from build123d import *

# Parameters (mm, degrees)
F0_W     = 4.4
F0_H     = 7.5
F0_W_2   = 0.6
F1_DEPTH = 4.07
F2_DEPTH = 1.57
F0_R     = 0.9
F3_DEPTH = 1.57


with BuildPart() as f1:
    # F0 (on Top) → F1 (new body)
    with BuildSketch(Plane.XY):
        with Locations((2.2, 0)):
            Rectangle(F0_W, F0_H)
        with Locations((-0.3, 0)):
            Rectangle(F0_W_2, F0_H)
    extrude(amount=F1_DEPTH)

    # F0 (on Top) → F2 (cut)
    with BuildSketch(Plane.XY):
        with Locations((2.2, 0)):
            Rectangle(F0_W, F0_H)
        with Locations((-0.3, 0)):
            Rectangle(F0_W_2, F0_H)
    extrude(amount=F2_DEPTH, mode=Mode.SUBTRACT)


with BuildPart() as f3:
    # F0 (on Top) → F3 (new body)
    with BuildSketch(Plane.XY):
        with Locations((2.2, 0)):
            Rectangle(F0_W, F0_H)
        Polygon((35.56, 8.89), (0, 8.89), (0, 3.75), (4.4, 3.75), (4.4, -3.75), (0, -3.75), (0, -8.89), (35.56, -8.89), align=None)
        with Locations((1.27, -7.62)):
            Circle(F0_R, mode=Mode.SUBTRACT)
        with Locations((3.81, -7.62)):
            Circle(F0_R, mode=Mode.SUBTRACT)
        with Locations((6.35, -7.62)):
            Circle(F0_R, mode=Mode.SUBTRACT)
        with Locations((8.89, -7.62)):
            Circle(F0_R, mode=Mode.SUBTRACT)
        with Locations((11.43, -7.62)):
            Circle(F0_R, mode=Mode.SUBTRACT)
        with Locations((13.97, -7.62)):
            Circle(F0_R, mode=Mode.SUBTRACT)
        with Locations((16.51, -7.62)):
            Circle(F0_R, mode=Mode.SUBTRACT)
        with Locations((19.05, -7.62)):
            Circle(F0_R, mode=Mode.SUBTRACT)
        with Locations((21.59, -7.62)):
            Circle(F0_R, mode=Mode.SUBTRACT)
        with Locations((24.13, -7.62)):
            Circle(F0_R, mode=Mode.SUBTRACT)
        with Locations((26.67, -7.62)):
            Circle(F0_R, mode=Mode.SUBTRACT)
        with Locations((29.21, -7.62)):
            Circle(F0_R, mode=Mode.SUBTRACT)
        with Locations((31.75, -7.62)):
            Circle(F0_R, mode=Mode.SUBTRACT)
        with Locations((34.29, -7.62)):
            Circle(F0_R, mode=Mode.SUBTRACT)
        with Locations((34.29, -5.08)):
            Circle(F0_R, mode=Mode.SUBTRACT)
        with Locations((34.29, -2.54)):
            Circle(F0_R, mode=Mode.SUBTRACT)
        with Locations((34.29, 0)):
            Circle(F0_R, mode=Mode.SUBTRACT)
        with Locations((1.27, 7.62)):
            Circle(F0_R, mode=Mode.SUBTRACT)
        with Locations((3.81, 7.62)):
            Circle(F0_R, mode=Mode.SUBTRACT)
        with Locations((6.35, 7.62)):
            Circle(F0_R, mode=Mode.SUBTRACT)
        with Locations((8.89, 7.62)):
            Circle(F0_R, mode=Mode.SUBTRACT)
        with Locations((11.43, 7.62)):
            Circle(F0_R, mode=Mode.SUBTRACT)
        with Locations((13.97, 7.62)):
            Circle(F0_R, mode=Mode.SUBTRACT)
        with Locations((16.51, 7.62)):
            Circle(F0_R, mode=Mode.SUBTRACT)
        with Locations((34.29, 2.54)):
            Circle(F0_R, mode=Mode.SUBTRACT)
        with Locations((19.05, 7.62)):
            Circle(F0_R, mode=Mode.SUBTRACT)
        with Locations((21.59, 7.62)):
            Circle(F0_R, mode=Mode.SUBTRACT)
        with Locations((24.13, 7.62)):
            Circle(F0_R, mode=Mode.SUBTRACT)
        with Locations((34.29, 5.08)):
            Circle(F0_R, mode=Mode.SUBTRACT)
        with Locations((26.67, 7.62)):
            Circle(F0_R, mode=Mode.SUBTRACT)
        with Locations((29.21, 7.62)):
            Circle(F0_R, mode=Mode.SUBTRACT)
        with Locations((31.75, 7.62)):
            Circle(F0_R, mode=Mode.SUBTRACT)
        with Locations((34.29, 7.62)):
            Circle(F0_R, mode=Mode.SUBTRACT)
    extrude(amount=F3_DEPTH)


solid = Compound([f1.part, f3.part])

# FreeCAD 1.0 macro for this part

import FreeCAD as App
import Part
import Sketcher

doc = App.newDocument("Part")
body = doc.addObject("PartDesign::Body", "Body")

sketch1 = body.newObject("Sketcher::SketchObject", "Sketch")
sketch1.AttachmentSupport = (doc.getObject("XY_Plane"), [""])
sketch1.MapMode = "FlatFace"
sketch1.addGeometry([
    Part.LineSegment(App.Vector(4, -4, 0), App.Vector(4, 4, 0)),
    Part.LineSegment(App.Vector(4, 4, 0), App.Vector(-1, 4, 0)),
    Part.LineSegment(App.Vector(-1, 4, 0), App.Vector(-1, -4, 0)),
    Part.LineSegment(App.Vector(-1, -4, 0), App.Vector(4, -4, 0)),
], False)
sketch1.addConstraint([
    Sketcher.Constraint("Coincident", 0, 2, 1, 1),
    Sketcher.Constraint("Coincident", 1, 2, 2, 1),
    Sketcher.Constraint("Coincident", 2, 2, 3, 1),
    Sketcher.Constraint("Coincident", 3, 2, 0, 1),
    Sketcher.Constraint("Vertical", 0),
    Sketcher.Constraint("Horizontal", 1),
    Sketcher.Constraint("Vertical", 2),
    Sketcher.Constraint("Horizontal", 3),
    Sketcher.Constraint("DistanceX", 1, 2, 1, 1, 5.0),
    Sketcher.Constraint("DistanceY", 0, 1, 0, 2, 7.5),
    Sketcher.Constraint("DistanceX", -1, 1, 0, 2, 4.4),
    Sketcher.Constraint("DistanceY", -1, 1, 0, 2, 3.75),
])
pad1 = body.newObject("PartDesign::Pad", "Pad")
pad1.Profile = sketch1
pad1.Length = 4.07

sketch2 = body.newObject("Sketcher::SketchObject", "Sketch001")
sketch2.AttachmentSupport = (doc.getObject("XY_Plane"), [""])
sketch2.MapMode = "FlatFace"
sketch2.addGeometry([
    Part.LineSegment(App.Vector(4, -4, 0), App.Vector(4, 4, 0)),
    Part.LineSegment(App.Vector(4, 4, 0), App.Vector(-1, 4, 0)),
    Part.LineSegment(App.Vector(-1, 4, 0), App.Vector(-1, -4, 0)),
    Part.LineSegment(App.Vector(-1, -4, 0), App.Vector(4, -4, 0)),
], False)
sketch2.addConstraint([
    Sketcher.Constraint("Coincident", 0, 2, 1, 1),
    Sketcher.Constraint("Coincident", 1, 2, 2, 1),
    Sketcher.Constraint("Coincident", 2, 2, 3, 1),
    Sketcher.Constraint("Coincident", 3, 2, 0, 1),
    Sketcher.Constraint("Vertical", 0),
    Sketcher.Constraint("Horizontal", 1),
    Sketcher.Constraint("Vertical", 2),
    Sketcher.Constraint("Horizontal", 3),
    Sketcher.Constraint("DistanceX", 1, 2, 1, 1, 5.0),
    Sketcher.Constraint("DistanceY", 0, 1, 0, 2, 7.5),
    Sketcher.Constraint("DistanceX", -1, 1, 0, 2, 4.4),
    Sketcher.Constraint("DistanceY", -1, 1, 0, 2, 3.75),
])
pocket1 = body.newObject("PartDesign::Pocket", "Pocket")
pocket1.Profile = sketch2
pocket1.Length = 1.57
pocket1.Reversed = True
body2 = doc.addObject("PartDesign::Body", "Body001")

sketch3 = body2.newObject("Sketcher::SketchObject", "Sketch002")
sketch3.AttachmentSupport = (doc.getObject("XY_Plane001"), [""])
sketch3.MapMode = "FlatFace"
sketch3.addGeometry([
    Part.LineSegment(App.Vector(0, -8.9, 0), App.Vector(35.6, -8.9, 0)),
    Part.LineSegment(App.Vector(35.6, -8.9, 0), App.Vector(35.6, 8.9, 0)),
    Part.LineSegment(App.Vector(35.6, 8.9, 0), App.Vector(0, 8.9, 0)),
    Part.LineSegment(App.Vector(0, 8.9, 0), App.Vector(0, -8.9, 0)),
    Part.Circle(App.Vector(1.3, -7.6, 0), App.Vector(0, 0, 1), 0.9),
    Part.Circle(App.Vector(3.8, -7.6, 0), App.Vector(0, 0, 1), 0.9),
    Part.Circle(App.Vector(6.3, -7.6, 0), App.Vector(0, 0, 1), 0.9),
    Part.Circle(App.Vector(8.9, -7.6, 0), App.Vector(0, 0, 1), 0.9),
    Part.Circle(App.Vector(11.4, -7.6, 0), App.Vector(0, 0, 1), 0.9),
    Part.Circle(App.Vector(14, -7.6, 0), App.Vector(0, 0, 1), 0.9),
    Part.Circle(App.Vector(16.5, -7.6, 0), App.Vector(0, 0, 1), 0.9),
    Part.Circle(App.Vector(19.1, -7.6, 0), App.Vector(0, 0, 1), 0.9),
    Part.Circle(App.Vector(21.6, -7.6, 0), App.Vector(0, 0, 1), 0.9),
    Part.Circle(App.Vector(24.1, -7.6, 0), App.Vector(0, 0, 1), 0.9),
    Part.Circle(App.Vector(26.7, -7.6, 0), App.Vector(0, 0, 1), 0.9),
    Part.Circle(App.Vector(29.2, -7.6, 0), App.Vector(0, 0, 1), 0.9),
    Part.Circle(App.Vector(31.8, -7.6, 0), App.Vector(0, 0, 1), 0.9),
    Part.Circle(App.Vector(34.3, -7.6, 0), App.Vector(0, 0, 1), 0.9),
    Part.Circle(App.Vector(34.3, -5.1, 0), App.Vector(0, 0, 1), 0.9),
    Part.Circle(App.Vector(34.3, -2.5, 0), App.Vector(0, 0, 1), 0.9),
    Part.Circle(App.Vector(1.3, 7.6, 0), App.Vector(0, 0, 1), 0.9),
    Part.Circle(App.Vector(3.8, 7.6, 0), App.Vector(0, 0, 1), 0.9),
    Part.Circle(App.Vector(6.3, 7.6, 0), App.Vector(0, 0, 1), 0.9),
    Part.Circle(App.Vector(8.9, 7.6, 0), App.Vector(0, 0, 1), 0.9),
    Part.Circle(App.Vector(11.4, 7.6, 0), App.Vector(0, 0, 1), 0.9),
    Part.Circle(App.Vector(14, 7.6, 0), App.Vector(0, 0, 1), 0.9),
    Part.Circle(App.Vector(16.5, 7.6, 0), App.Vector(0, 0, 1), 0.9),
    Part.Circle(App.Vector(34.3, 0, 0), App.Vector(0, 0, 1), 0.9),
    Part.Circle(App.Vector(34.3, 2.5, 0), App.Vector(0, 0, 1), 0.9),
    Part.Circle(App.Vector(19.1, 7.6, 0), App.Vector(0, 0, 1), 0.9),
    Part.Circle(App.Vector(21.6, 7.6, 0), App.Vector(0, 0, 1), 0.9),
    Part.Circle(App.Vector(24.1, 7.6, 0), App.Vector(0, 0, 1), 0.9),
    Part.Circle(App.Vector(34.3, 5.1, 0), App.Vector(0, 0, 1), 0.9),
    Part.Circle(App.Vector(26.7, 7.6, 0), App.Vector(0, 0, 1), 0.9),
    Part.Circle(App.Vector(29.2, 7.6, 0), App.Vector(0, 0, 1), 0.9),
    Part.Circle(App.Vector(31.8, 7.6, 0), App.Vector(0, 0, 1), 0.9),
    Part.Circle(App.Vector(34.3, 7.6, 0), App.Vector(0, 0, 1), 0.9),
], False)
sketch3.addConstraint([
    Sketcher.Constraint("Coincident", 0, 2, 1, 1),
    Sketcher.Constraint("Coincident", 1, 2, 2, 1),
    Sketcher.Constraint("Coincident", 2, 2, 3, 1),
    Sketcher.Constraint("Coincident", 3, 2, 0, 1),
    Sketcher.Constraint("Horizontal", 0),
    Sketcher.Constraint("Vertical", 1),
    Sketcher.Constraint("Horizontal", 2),
    Sketcher.Constraint("Vertical", 3),
    Sketcher.Constraint("Equal", 4, 5),
    Sketcher.Constraint("Equal", 5, 6),
    Sketcher.Constraint("Equal", 6, 7),
    Sketcher.Constraint("Equal", 7, 8),
    Sketcher.Constraint("Equal", 8, 9),
    Sketcher.Constraint("Equal", 9, 10),
    Sketcher.Constraint("Equal", 10, 11),
    Sketcher.Constraint("Equal", 11, 12),
    Sketcher.Constraint("Equal", 12, 13),
    Sketcher.Constraint("Equal", 13, 14),
    Sketcher.Constraint("Equal", 14, 15),
    Sketcher.Constraint("Equal", 15, 16),
    Sketcher.Constraint("Equal", 16, 17),
    Sketcher.Constraint("Equal", 17, 18),
    Sketcher.Constraint("Equal", 18, 19),
    Sketcher.Constraint("Equal", 19, 20),
    Sketcher.Constraint("Equal", 20, 21),
    Sketcher.Constraint("Equal", 21, 22),
    Sketcher.Constraint("Equal", 22, 23),
    Sketcher.Constraint("Equal", 23, 24),
    Sketcher.Constraint("Equal", 24, 25),
    Sketcher.Constraint("Equal", 25, 26),
    Sketcher.Constraint("Equal", 26, 27),
    Sketcher.Constraint("Equal", 27, 28),
    Sketcher.Constraint("Equal", 28, 29),
    Sketcher.Constraint("Equal", 29, 30),
    Sketcher.Constraint("Equal", 30, 31),
    Sketcher.Constraint("Equal", 31, 32),
    Sketcher.Constraint("Equal", 32, 33),
    Sketcher.Constraint("Equal", 33, 34),
    Sketcher.Constraint("Equal", 34, 35),
    Sketcher.Constraint("Equal", 35, 36),
    Sketcher.Constraint("Symmetric", 2, 2, 3, 2, -1, 1),
    Sketcher.Constraint("Symmetric", 4, 3, 20, 3, -1),
    Sketcher.Constraint("Symmetric", 5, 3, 21, 3, -1),
    Sketcher.Constraint("Symmetric", 6, 3, 22, 3, -1),
    Sketcher.Constraint("Symmetric", 7, 3, 23, 3, -1),
    Sketcher.Constraint("Symmetric", 8, 3, 24, 3, -1),
    Sketcher.Constraint("Symmetric", 9, 3, 25, 3, -1),
    Sketcher.Constraint("Symmetric", 10, 3, 26, 3, -1),
    Sketcher.Constraint("Symmetric", 19, 3, 28, 3, -1),
    Sketcher.Constraint("Symmetric", 11, 3, 29, 3, -1),
    Sketcher.Constraint("Symmetric", 12, 3, 30, 3, -1),
    Sketcher.Constraint("Symmetric", 13, 3, 31, 3, -1),
    Sketcher.Constraint("Symmetric", 18, 3, 32, 3, -1),
    Sketcher.Constraint("Symmetric", 14, 3, 33, 3, -1),
    Sketcher.Constraint("Symmetric", 15, 3, 34, 3, -1),
    Sketcher.Constraint("Symmetric", 16, 3, 35, 3, -1),
    Sketcher.Constraint("Symmetric", 17, 3, 36, 3, -1),
    Sketcher.Constraint("PointOnObject", 27, 3, -1),
    Sketcher.Constraint("Horizontal", 4, 3, 5, 3),
    Sketcher.Constraint("Horizontal", 5, 3, 6, 3),
    Sketcher.Constraint("Horizontal", 6, 3, 7, 3),
    Sketcher.Constraint("Horizontal", 7, 3, 8, 3),
    Sketcher.Constraint("Horizontal", 8, 3, 9, 3),
    Sketcher.Constraint("Horizontal", 9, 3, 10, 3),
    Sketcher.Constraint("Horizontal", 10, 3, 11, 3),
    Sketcher.Constraint("Horizontal", 11, 3, 12, 3),
    Sketcher.Constraint("Horizontal", 12, 3, 13, 3),
    Sketcher.Constraint("Horizontal", 13, 3, 14, 3),
    Sketcher.Constraint("Horizontal", 14, 3, 15, 3),
    Sketcher.Constraint("Horizontal", 15, 3, 16, 3),
    Sketcher.Constraint("Horizontal", 16, 3, 17, 3),
    Sketcher.Constraint("Vertical", 17, 3, 18, 3),
    Sketcher.Constraint("Vertical", 18, 3, 19, 3),
    Sketcher.Constraint("Vertical", 19, 3, 27, 3),
    Sketcher.Constraint("Diameter", 4, 1.8),
    Sketcher.Constraint("DistanceX", 0, 1, 0, 2, 35.56),
    Sketcher.Constraint("DistanceY", 1, 1, 1, 2, 17.78),
    Sketcher.Constraint("DistanceX", 4, 3, 9, 3, 12.7),
    Sketcher.Constraint("DistanceX", 5, 3, 10, 3, 12.7),
    Sketcher.Constraint("DistanceX", 6, 3, 11, 3, 12.7),
    Sketcher.Constraint("DistanceX", 7, 3, 12, 3, 12.7),
    Sketcher.Constraint("DistanceX", 8, 3, 13, 3, 12.7),
    Sketcher.Constraint("DistanceX", 9, 3, 14, 3, 12.7),
    Sketcher.Constraint("DistanceX", 10, 3, 15, 3, 12.7),
    Sketcher.Constraint("DistanceX", 11, 3, 16, 3, 12.7),
    Sketcher.Constraint("DistanceX", 12, 3, 17, 3, 12.7),
    Sketcher.Constraint("DistanceX", -1, 1, 4, 3, 1.27),
    Sketcher.Constraint("DistanceY", 4, 3, -1, 1, 7.62),
    Sketcher.Constraint("DistanceX", -1, 1, 5, 3, 3.81),
    Sketcher.Constraint("DistanceX", -1, 1, 6, 3, 6.35),
    Sketcher.Constraint("DistanceX", -1, 1, 7, 3, 8.89),
    Sketcher.Constraint("DistanceX", -1, 1, 8, 3, 11.43),
    Sketcher.Constraint("DistanceY", 18, 3, -1, 1, 5.08),
    Sketcher.Constraint("DistanceY", 19, 3, -1, 1, 2.54),
])
pad2 = body2.newObject("PartDesign::Pad", "Pad001")
pad2.Profile = sketch3
pad2.Length = 1.57

doc.recompute()
